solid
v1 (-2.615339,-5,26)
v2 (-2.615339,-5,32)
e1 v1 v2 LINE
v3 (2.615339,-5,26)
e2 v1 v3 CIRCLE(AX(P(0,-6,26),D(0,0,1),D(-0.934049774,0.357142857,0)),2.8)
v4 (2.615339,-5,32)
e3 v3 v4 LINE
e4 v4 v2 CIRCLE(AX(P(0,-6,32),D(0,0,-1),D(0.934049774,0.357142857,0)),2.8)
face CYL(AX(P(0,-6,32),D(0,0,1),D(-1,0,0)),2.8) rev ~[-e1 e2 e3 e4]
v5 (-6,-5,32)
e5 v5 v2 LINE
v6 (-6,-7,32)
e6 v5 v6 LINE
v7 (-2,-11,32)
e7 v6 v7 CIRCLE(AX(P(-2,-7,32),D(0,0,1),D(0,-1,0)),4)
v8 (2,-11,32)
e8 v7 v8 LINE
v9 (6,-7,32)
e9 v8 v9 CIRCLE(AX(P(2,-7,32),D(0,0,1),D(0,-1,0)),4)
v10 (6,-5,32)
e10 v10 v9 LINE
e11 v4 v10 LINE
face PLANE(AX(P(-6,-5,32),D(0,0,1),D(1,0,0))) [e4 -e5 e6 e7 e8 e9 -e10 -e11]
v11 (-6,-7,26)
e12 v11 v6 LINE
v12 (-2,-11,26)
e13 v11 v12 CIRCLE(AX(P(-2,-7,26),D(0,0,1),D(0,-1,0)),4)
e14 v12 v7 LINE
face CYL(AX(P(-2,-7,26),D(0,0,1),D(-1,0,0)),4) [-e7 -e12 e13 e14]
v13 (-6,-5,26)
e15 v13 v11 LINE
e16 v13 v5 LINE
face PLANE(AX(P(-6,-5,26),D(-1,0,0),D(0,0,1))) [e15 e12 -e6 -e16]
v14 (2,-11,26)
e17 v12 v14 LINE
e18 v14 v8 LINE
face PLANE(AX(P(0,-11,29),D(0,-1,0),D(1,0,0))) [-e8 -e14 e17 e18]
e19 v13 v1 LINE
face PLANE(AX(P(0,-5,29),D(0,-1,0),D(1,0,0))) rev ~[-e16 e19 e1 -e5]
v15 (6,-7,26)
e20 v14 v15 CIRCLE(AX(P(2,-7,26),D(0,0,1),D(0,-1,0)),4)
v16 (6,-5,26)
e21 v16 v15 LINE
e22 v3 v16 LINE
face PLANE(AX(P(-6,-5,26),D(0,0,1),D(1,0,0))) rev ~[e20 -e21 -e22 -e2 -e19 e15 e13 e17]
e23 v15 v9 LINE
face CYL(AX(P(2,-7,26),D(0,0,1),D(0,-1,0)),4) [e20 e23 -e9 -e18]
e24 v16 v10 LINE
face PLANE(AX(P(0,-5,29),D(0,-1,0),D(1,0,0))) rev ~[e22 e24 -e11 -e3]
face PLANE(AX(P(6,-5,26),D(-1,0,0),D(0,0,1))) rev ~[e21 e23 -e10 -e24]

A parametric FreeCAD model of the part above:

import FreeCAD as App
import Part
import Sketcher


def edges_at(feature, points):
    """Names of the edges that pass closest to the given points."""
    edges = feature.Shape.Edges
    near = lambda p: min(range(len(edges)), key=lambda i: edges[i].distToShape(Part.Vertex(*p))[0])
    return sorted({f"Edge{near(p) + 1}" for p in points})

doc = App.newDocument("Part")
body = doc.addObject("PartDesign::Body", "Body")

# Sketch on XZ plane
sketch1 = doc.addObject("Sketcher::SketchObject", "Sketch")
body.addObject(sketch1)
sketch1.AttachmentSupport = (doc.XZ_Plane, [""])
sketch1.MapMode = "FlatFace"
sketch1.AttachmentOffset = App.Placement(App.Vector(0, 0, 5), App.Rotation())
sketch1.addGeometry(Part.LineSegment(App.Vector(-6, 32, 0), App.Vector(-6, 26, 0)), False)
sketch1.addGeometry(Part.LineSegment(App.Vector(-6, 26, 0), App.Vector(6, 26, 0)), False)
sketch1.addGeometry(Part.LineSegment(App.Vector(6, 26, 0), App.Vector(6, 32, 0)), False)
sketch1.addGeometry(Part.LineSegment(App.Vector(6, 32, 0), App.Vector(-6, 32, 0)), False)
sketch1.addConstraint(Sketcher.Constraint("Coincident", 0, 2, 1, 1))
sketch1.addConstraint(Sketcher.Constraint("Coincident", 1, 2, 2, 1))
sketch1.addConstraint(Sketcher.Constraint("Coincident", 2, 2, 3, 1))
sketch1.addConstraint(Sketcher.Constraint("Coincident", 3, 2, 0, 1))
sketch1.addConstraint(Sketcher.Constraint("Vertical", 0))
sketch1.addConstraint(Sketcher.Constraint("Horizontal", 1))
sketch1.addConstraint(Sketcher.Constraint("Vertical", 2))
sketch1.addConstraint(Sketcher.Constraint("Horizontal", 3))
sketch1.addConstraint(Sketcher.Constraint("DistanceX", 1, 1, 1, 2, 12.0))
sketch1.addConstraint(Sketcher.Constraint("DistanceY", 0, 2, 0, 1, 6.0))
sketch1.addConstraint(Sketcher.Constraint("DistanceX", 0, 2, -1, 1, 6.0))
sketch1.addConstraint(Sketcher.Constraint("DistanceY", -1, 1, 0, 2, 26.0))
pad1 = doc.addObject("PartDesign::Pad", "Pad")
body.addObject(pad1)
pad1.Profile = sketch1
pad1.Length = 6

# Sketch on XY plane
sketch2 = doc.addObject("Sketcher::SketchObject", "Sketch001")
body.addObject(sketch2)
sketch2.AttachmentSupport = (doc.XY_Plane, [""])
sketch2.MapMode = "FlatFace"
sketch2.AttachmentOffset = App.Placement(App.Vector(0, 0, 32), App.Rotation())
sketch2.addGeometry(Part.Circle(App.Vector(0, -6, 0), App.Vector(0, 0, 1), 2.8), False)
sketch2.addConstraint(Sketcher.Constraint("PointOnObject", 0, 3, -2))
sketch2.addConstraint(Sketcher.Constraint("Diameter", 0, 5.6))
sketch2.addConstraint(Sketcher.Constraint("DistanceY", 0, 3, -1, 1, 6.0))
pocket1 = doc.addObject("PartDesign::Pocket", "Pocket")
body.addObject(pocket1)
pocket1.Profile = sketch2
pocket1.Type = "ThroughAll"
doc.recompute()

fillet = doc.addObject("PartDesign::Fillet", "Fillet")
body.addObject(fillet)
fillet.Base = (pocket1, edges_at(pocket1, [(-6, -11, 29), (6, -11, 29)]))
fillet.Radius = 4

doc.recompute()
